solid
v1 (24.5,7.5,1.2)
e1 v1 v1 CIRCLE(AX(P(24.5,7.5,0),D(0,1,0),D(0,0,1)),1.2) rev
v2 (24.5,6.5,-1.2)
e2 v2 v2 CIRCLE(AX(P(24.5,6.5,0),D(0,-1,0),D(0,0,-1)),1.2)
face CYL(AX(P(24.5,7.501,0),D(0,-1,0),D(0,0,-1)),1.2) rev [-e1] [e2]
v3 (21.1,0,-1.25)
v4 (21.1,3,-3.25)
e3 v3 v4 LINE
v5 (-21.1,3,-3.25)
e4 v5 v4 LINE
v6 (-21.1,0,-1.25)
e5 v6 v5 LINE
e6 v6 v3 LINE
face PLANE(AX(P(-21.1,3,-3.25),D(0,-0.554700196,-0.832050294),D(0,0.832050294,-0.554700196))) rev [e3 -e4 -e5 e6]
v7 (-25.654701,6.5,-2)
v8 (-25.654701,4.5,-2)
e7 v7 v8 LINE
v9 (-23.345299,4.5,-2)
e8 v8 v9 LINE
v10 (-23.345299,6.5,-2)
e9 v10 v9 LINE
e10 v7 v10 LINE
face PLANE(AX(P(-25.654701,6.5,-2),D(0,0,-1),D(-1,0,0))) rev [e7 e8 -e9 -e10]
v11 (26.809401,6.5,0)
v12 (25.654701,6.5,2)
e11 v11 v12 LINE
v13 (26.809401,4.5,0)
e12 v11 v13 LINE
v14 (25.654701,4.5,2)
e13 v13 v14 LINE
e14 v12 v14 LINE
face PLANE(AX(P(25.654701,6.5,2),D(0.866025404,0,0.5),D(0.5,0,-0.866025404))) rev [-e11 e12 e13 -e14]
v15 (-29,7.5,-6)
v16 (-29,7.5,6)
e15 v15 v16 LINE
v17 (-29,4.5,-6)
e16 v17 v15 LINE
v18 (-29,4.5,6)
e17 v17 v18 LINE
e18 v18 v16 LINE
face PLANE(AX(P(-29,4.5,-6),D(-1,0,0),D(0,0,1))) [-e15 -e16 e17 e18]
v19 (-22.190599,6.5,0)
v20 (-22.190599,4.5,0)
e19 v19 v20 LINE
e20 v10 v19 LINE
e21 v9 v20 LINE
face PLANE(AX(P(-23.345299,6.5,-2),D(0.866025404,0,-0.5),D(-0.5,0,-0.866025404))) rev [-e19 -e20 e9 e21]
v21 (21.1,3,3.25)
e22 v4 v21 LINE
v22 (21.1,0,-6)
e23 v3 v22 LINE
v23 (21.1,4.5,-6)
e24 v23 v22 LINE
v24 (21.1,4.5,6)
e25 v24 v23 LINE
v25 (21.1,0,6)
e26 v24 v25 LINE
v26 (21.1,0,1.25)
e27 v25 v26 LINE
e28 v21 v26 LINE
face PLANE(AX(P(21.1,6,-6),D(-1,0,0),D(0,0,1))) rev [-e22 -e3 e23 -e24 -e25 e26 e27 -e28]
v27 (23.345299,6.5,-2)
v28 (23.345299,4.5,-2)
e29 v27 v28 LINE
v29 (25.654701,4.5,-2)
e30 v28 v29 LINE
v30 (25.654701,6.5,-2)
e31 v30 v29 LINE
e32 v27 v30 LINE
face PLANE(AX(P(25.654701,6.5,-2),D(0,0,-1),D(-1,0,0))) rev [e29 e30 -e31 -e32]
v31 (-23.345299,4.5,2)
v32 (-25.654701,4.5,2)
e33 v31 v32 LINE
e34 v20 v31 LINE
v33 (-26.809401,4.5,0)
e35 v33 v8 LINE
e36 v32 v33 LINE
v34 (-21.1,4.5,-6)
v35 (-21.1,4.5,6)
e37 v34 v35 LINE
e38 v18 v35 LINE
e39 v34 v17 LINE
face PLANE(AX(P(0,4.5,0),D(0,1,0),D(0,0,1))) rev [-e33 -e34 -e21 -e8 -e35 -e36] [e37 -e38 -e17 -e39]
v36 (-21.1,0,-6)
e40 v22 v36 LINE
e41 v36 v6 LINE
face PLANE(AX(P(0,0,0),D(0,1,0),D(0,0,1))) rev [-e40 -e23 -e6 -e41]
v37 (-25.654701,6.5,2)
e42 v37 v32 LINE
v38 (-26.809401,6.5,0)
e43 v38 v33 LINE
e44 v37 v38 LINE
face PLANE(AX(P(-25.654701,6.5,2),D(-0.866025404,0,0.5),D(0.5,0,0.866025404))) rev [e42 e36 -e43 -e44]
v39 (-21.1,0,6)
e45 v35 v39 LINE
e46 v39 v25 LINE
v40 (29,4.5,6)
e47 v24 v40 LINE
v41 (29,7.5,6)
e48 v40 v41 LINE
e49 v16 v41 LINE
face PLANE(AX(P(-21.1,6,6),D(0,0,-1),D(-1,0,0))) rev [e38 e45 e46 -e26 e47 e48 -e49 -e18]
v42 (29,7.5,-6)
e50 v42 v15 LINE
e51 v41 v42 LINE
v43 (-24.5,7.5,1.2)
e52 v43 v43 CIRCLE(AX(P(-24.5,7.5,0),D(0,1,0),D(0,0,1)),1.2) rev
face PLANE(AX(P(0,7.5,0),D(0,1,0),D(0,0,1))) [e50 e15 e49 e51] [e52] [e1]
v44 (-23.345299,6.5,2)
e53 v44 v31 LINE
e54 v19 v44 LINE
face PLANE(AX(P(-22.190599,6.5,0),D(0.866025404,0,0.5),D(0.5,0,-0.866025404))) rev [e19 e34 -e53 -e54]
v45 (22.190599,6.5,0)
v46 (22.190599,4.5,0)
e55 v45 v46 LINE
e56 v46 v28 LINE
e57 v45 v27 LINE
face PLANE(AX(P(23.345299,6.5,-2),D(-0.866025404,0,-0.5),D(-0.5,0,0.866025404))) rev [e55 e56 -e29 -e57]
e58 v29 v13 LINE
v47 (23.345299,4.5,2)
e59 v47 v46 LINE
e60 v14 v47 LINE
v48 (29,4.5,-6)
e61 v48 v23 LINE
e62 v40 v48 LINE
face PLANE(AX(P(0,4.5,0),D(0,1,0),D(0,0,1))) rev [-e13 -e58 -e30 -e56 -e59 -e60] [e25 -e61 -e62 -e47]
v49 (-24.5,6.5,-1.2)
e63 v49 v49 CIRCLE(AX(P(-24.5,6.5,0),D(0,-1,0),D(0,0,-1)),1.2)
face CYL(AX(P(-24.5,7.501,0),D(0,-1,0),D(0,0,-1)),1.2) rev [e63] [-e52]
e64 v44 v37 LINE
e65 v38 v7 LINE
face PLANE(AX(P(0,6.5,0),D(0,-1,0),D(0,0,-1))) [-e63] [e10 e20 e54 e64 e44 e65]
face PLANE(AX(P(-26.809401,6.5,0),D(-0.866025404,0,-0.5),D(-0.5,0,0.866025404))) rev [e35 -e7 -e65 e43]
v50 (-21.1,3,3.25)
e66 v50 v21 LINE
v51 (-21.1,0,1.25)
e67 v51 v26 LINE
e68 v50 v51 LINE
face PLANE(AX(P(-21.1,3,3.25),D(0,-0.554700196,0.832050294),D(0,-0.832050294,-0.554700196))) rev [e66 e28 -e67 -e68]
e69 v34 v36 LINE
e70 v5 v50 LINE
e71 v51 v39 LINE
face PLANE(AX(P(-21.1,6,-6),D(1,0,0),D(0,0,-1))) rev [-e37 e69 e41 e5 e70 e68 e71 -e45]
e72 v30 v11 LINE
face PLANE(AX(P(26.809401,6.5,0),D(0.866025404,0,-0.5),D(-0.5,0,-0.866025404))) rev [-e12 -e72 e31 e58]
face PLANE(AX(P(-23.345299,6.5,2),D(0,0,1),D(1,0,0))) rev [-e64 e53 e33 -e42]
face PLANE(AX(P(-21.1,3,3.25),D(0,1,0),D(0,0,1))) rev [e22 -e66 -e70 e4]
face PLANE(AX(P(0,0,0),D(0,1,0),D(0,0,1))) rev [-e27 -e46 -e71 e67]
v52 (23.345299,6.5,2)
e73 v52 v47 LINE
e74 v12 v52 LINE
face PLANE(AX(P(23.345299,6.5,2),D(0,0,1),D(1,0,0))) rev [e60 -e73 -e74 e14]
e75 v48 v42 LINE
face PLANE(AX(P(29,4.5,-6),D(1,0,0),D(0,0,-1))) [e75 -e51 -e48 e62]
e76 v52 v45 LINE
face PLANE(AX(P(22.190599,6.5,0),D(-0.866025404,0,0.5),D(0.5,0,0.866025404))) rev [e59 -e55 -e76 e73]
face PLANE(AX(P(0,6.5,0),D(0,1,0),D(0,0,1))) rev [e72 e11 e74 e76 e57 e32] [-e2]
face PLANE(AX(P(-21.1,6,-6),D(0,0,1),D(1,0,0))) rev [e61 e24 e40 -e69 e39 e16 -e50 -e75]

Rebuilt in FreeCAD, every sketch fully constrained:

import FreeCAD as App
import Part
import Sketcher
Q = App.Units.Quantity

doc = App.newDocument("Part")
body = doc.addObject("PartDesign::Body", "Body")

sketch1 = body.newObject("Sketcher::SketchObject", "Sketch")
sketch1.AttachmentSupport = (doc.getObject("XZ_Plane"), [""])
sketch1.MapMode = "FlatFace"
sketch1.addGeometry([
    Part.LineSegment(App.Vector(-21, -6, 0), App.Vector(-21, 6, 0)),
    Part.LineSegment(App.Vector(-21, 6, 0), App.Vector(21, 6, 0)),
    Part.LineSegment(App.Vector(21, 6, 0), App.Vector(21, -6, 0)),
    Part.LineSegment(App.Vector(21, -6, 0), App.Vector(-21, -6, 0)),
], False)
sketch1.addConstraint([
    Sketcher.Constraint("Coincident", 0, 2, 1, 1),
    Sketcher.Constraint("Coincident", 1, 2, 2, 1),
    Sketcher.Constraint("Coincident", 2, 2, 3, 1),
    Sketcher.Constraint("Coincident", 3, 2, 0, 1),
    Sketcher.Constraint("Vertical", 0),
    Sketcher.Constraint("Horizontal", 1),
    Sketcher.Constraint("Vertical", 2),
    Sketcher.Constraint("Horizontal", 3),
    Sketcher.Constraint("Symmetric", 0, 2, 2, 2, -1, 1),
    Sketcher.Constraint("DistanceY", 0, 1, 0, 2, Q("12 mm")),
    Sketcher.Constraint("DistanceX", 1, 1, 1, 2, Q("42.2 mm")),
])
pad1 = body.newObject("PartDesign::Pad", "Pad")
pad1.Profile = sketch1
pad1.Length = 6
pad1.Reversed = True

sketch2 = body.newObject("Sketcher::SketchObject", "Sketch001")
sketch2.AttachmentSupport = (doc.getObject("YZ_Plane"), [""])
sketch2.MapMode = "FlatFace"
sketch2.AttachmentOffset = App.Placement(App.Vector(0, 0, 21.1), App.Rotation())
sketch2.addGeometry([
    Part.LineSegment(App.Vector(0, -1.2, 0), App.Vector(3, -3.2, 0)),
    Part.LineSegment(App.Vector(3, -3.2, 0), App.Vector(3, 3.2, 0)),
    Part.LineSegment(App.Vector(3, 3.2, 0), App.Vector(0, 1.2, 0)),
    Part.LineSegment(App.Vector(0, 1.2, 0), App.Vector(0, -1.2, 0)),
], False)
sketch2.addConstraint([
    Sketcher.Constraint("Coincident", 0, 2, 1, 1),
    Sketcher.Constraint("Coincident", 1, 2, 2, 1),
    Sketcher.Constraint("Coincident", 2, 2, 3, 1),
    Sketcher.Constraint("Coincident", 3, 2, 0, 1),
    Sketcher.Constraint("Vertical", 1),
    Sketcher.Constraint("Vertical", 3),
    Sketcher.Constraint("Symmetric", 2, 2, 3, 2, -1, 1),
    Sketcher.Constraint("Equal", 0, 2),
    Sketcher.Constraint("DistanceY", 1, 1, 1, 2, Q("6.5 mm")),
    Sketcher.Constraint("DistanceY", 3, 2, 3, 1, Q("2.5 mm")),
    Sketcher.Constraint("DistanceX", -1, 1, 0, 2, Q("3 mm")),
])
pocket1 = body.newObject("PartDesign::Pocket", "Pocket")
pocket1.Profile = sketch2
pocket1.Type = "ThroughAll"

sketch3 = body.newObject("Sketcher::SketchObject", "Sketch002")
sketch3.AttachmentSupport = (doc.getObject("XZ_Plane"), [""])
sketch3.MapMode = "FlatFace"
sketch3.AttachmentOffset = App.Placement(App.Vector(0, 0, -6), App.Rotation())
sketch3.addGeometry([
    Part.LineSegment(App.Vector(-29, -6, 0), App.Vector(-29, 6, 0)),
    Part.LineSegment(App.Vector(-29, 6, 0), App.Vector(29, 6, 0)),
    Part.LineSegment(App.Vector(29, 6, 0), App.Vector(29, -6, 0)),
    Part.LineSegment(App.Vector(29, -6, 0), App.Vector(-29, -6, 0)),
], False)
sketch3.addConstraint([
    Sketcher.Constraint("Coincident", 0, 2, 1, 1),
    Sketcher.Constraint("Coincident", 1, 2, 2, 1),
    Sketcher.Constraint("Coincident", 2, 2, 3, 1),
    Sketcher.Constraint("Coincident", 3, 2, 0, 1),
    Sketcher.Constraint("Vertical", 0),
    Sketcher.Constraint("Horizontal", 1),
    Sketcher.Constraint("Vertical", 2),
    Sketcher.Constraint("Horizontal", 3),
    Sketcher.Constraint("Symmetric", 0, 2, 2, 2, -1, 1),
    Sketcher.Constraint("DistanceX", 1, 1, 1, 2, Q("58 mm")),
    Sketcher.Constraint("DistanceY", 0, 1, 0, 2, Q("12 mm")),
])
pad2 = body.newObject("PartDesign::Pad", "Pad001")
pad2.Profile = sketch3
pad2.Length = 3
pad2.Midplane = True

sketch4 = body.newObject("Sketcher::SketchObject", "Sketch003")
sketch4.AttachmentSupport = (doc.getObject("XZ_Plane"), [""])
sketch4.MapMode = "FlatFace"
sketch4.AttachmentOffset = App.Placement(App.Vector(0, 0, -4.5), App.Rotation())
sketch4.addGeometry([
    Part.LineSegment(App.Vector(-22.2, 0, 0), App.Vector(-23.3, 2, 0)),
    Part.LineSegment(App.Vector(-23.3, 2, 0), App.Vector(-25.7, 2, 0)),
    Part.LineSegment(App.Vector(-25.7, 2, 0), App.Vector(-26.8, 0, 0)),
    Part.LineSegment(App.Vector(-26.8, 0, 0), App.Vector(-25.7, -2, 0)),
    Part.LineSegment(App.Vector(-25.7, -2, 0), App.Vector(-23.3, -2, 0)),
    Part.LineSegment(App.Vector(-23.3, -2, 0), App.Vector(-22.2, 0, 0)),
    Part.LineSegment(App.Vector(23.3, 2, 0), App.Vector(22.2, 0, 0)),
    Part.LineSegment(App.Vector(22.2, 0, 0), App.Vector(23.3, -2, 0)),
    Part.LineSegment(App.Vector(23.3, -2, 0), App.Vector(25.7, -2, 0)),
    Part.LineSegment(App.Vector(25.7, -2, 0), App.Vector(26.8, 0, 0)),
    Part.LineSegment(App.Vector(26.8, 0, 0), App.Vector(25.7, 2, 0)),
    Part.LineSegment(App.Vector(25.7, 2, 0), App.Vector(23.3, 2, 0)),
], False)
sketch4.addConstraint([
    Sketcher.Constraint("Coincident", 0, 2, 1, 1),
    Sketcher.Constraint("Coincident", 1, 2, 2, 1),
    Sketcher.Constraint("Coincident", 2, 2, 3, 1),
    Sketcher.Constraint("Coincident", 3, 2, 4, 1),
    Sketcher.Constraint("Coincident", 4, 2, 5, 1),
    Sketcher.Constraint("Coincident", 5, 2, 0, 1),
    Sketcher.Constraint("Coincident", 6, 2, 7, 1),
    Sketcher.Constraint("Coincident", 7, 2, 8, 1),
    Sketcher.Constraint("Coincident", 8, 2, 9, 1),
    Sketcher.Constraint("Coincident", 9, 2, 10, 1),
    Sketcher.Constraint("Coincident", 10, 2, 11, 1),
    Sketcher.Constraint("Coincident", 11, 2, 6, 1),
    Sketcher.Constraint("Horizontal", 1),
    Sketcher.Constraint("Horizontal", 4),
    Sketcher.Constraint("Horizontal", 8),
    Sketcher.Constraint("Horizontal", 11),
    Sketcher.Constraint("Symmetric", 5, 2, 6, 2, -1, 1),
    Sketcher.Constraint("Symmetric", 0, 2, 7, 2, -1, 1),
    Sketcher.Constraint("Symmetric", 2, 2, 9, 2, -1, 1),
    Sketcher.Constraint("Symmetric", 3, 2, 10, 2, -1, 1),
    Sketcher.Constraint("Symmetric", 4, 2, 7, 2, -2),
    Sketcher.Constraint("PointOnObject", 2, 2, -1),
    Sketcher.Constraint("PointOnObject", 5, 2, -1),
    Sketcher.Constraint("Parallel", 0, 3),
    Sketcher.Constraint("Parallel", 2, 5),
    Sketcher.Constraint("Parallel", 5, 6),
    Sketcher.Constraint("Parallel", 6, 9),
    Sketcher.Constraint("Angle", 0, Q("120 deg")),
    Sketcher.Constraint("DistanceY", -1, 1, 0, 2, Q("2 mm")),
    Sketcher.Constraint("DistanceX", 3, 2, 7, 2, Q("49 mm")),
    Sketcher.Constraint("DistanceX", 1, 2, 1, 1, Q("2.309401 mm")),
])
pocket2 = body.newObject("PartDesign::Pocket", "Pocket001")
pocket2.Profile = sketch4
pocket2.Length = 2

sketch5 = body.newObject("Sketcher::SketchObject", "Sketch004")
sketch5.AttachmentSupport = (doc.getObject("XZ_Plane"), [""])
sketch5.MapMode = "FlatFace"
sketch5.AttachmentOffset = App.Placement(App.Vector(0, 0, -6.5), App.Rotation())
sketch5.addGeometry(Part.Circle(App.Vector(-24.5, 0, 0), App.Vector(0, 0, 1), 1.2), False)
sketch5.addConstraint([
    Sketcher.Constraint("PointOnObject", 0, 3, -1),
    Sketcher.Constraint("Diameter", 0, Q("2.4 mm")),
    Sketcher.Constraint("DistanceX", 0, 3, -1, 1, Q("24.5 mm")),
])
pocket3 = body.newObject("PartDesign::Pocket", "Pocket002")
pocket3.Profile = sketch5
pocket3.Type = "UpToFirst"

sketch6 = body.newObject("Sketcher::SketchObject", "Sketch005")
sketch6.AttachmentSupport = (doc.getObject("XZ_Plane"), [""])
sketch6.MapMode = "FlatFace"
sketch6.AttachmentOffset = App.Placement(App.Vector(0, 0, -6.5), App.Rotation())
sketch6.addGeometry(Part.Circle(App.Vector(24.5, 0, 0), App.Vector(0, 0, 1), 1.2), False)
sketch6.addConstraint([
    Sketcher.Constraint("PointOnObject", 0, 3, -1),
    Sketcher.Constraint("Diameter", 0, Q("2.4 mm")),
    Sketcher.Constraint("DistanceX", -1, 1, 0, 3, Q("24.5 mm")),
])
pocket4 = body.newObject("PartDesign::Pocket", "Pocket003")
pocket4.Profile = sketch6
pocket4.Type = "UpToFirst"

doc.recompute()
